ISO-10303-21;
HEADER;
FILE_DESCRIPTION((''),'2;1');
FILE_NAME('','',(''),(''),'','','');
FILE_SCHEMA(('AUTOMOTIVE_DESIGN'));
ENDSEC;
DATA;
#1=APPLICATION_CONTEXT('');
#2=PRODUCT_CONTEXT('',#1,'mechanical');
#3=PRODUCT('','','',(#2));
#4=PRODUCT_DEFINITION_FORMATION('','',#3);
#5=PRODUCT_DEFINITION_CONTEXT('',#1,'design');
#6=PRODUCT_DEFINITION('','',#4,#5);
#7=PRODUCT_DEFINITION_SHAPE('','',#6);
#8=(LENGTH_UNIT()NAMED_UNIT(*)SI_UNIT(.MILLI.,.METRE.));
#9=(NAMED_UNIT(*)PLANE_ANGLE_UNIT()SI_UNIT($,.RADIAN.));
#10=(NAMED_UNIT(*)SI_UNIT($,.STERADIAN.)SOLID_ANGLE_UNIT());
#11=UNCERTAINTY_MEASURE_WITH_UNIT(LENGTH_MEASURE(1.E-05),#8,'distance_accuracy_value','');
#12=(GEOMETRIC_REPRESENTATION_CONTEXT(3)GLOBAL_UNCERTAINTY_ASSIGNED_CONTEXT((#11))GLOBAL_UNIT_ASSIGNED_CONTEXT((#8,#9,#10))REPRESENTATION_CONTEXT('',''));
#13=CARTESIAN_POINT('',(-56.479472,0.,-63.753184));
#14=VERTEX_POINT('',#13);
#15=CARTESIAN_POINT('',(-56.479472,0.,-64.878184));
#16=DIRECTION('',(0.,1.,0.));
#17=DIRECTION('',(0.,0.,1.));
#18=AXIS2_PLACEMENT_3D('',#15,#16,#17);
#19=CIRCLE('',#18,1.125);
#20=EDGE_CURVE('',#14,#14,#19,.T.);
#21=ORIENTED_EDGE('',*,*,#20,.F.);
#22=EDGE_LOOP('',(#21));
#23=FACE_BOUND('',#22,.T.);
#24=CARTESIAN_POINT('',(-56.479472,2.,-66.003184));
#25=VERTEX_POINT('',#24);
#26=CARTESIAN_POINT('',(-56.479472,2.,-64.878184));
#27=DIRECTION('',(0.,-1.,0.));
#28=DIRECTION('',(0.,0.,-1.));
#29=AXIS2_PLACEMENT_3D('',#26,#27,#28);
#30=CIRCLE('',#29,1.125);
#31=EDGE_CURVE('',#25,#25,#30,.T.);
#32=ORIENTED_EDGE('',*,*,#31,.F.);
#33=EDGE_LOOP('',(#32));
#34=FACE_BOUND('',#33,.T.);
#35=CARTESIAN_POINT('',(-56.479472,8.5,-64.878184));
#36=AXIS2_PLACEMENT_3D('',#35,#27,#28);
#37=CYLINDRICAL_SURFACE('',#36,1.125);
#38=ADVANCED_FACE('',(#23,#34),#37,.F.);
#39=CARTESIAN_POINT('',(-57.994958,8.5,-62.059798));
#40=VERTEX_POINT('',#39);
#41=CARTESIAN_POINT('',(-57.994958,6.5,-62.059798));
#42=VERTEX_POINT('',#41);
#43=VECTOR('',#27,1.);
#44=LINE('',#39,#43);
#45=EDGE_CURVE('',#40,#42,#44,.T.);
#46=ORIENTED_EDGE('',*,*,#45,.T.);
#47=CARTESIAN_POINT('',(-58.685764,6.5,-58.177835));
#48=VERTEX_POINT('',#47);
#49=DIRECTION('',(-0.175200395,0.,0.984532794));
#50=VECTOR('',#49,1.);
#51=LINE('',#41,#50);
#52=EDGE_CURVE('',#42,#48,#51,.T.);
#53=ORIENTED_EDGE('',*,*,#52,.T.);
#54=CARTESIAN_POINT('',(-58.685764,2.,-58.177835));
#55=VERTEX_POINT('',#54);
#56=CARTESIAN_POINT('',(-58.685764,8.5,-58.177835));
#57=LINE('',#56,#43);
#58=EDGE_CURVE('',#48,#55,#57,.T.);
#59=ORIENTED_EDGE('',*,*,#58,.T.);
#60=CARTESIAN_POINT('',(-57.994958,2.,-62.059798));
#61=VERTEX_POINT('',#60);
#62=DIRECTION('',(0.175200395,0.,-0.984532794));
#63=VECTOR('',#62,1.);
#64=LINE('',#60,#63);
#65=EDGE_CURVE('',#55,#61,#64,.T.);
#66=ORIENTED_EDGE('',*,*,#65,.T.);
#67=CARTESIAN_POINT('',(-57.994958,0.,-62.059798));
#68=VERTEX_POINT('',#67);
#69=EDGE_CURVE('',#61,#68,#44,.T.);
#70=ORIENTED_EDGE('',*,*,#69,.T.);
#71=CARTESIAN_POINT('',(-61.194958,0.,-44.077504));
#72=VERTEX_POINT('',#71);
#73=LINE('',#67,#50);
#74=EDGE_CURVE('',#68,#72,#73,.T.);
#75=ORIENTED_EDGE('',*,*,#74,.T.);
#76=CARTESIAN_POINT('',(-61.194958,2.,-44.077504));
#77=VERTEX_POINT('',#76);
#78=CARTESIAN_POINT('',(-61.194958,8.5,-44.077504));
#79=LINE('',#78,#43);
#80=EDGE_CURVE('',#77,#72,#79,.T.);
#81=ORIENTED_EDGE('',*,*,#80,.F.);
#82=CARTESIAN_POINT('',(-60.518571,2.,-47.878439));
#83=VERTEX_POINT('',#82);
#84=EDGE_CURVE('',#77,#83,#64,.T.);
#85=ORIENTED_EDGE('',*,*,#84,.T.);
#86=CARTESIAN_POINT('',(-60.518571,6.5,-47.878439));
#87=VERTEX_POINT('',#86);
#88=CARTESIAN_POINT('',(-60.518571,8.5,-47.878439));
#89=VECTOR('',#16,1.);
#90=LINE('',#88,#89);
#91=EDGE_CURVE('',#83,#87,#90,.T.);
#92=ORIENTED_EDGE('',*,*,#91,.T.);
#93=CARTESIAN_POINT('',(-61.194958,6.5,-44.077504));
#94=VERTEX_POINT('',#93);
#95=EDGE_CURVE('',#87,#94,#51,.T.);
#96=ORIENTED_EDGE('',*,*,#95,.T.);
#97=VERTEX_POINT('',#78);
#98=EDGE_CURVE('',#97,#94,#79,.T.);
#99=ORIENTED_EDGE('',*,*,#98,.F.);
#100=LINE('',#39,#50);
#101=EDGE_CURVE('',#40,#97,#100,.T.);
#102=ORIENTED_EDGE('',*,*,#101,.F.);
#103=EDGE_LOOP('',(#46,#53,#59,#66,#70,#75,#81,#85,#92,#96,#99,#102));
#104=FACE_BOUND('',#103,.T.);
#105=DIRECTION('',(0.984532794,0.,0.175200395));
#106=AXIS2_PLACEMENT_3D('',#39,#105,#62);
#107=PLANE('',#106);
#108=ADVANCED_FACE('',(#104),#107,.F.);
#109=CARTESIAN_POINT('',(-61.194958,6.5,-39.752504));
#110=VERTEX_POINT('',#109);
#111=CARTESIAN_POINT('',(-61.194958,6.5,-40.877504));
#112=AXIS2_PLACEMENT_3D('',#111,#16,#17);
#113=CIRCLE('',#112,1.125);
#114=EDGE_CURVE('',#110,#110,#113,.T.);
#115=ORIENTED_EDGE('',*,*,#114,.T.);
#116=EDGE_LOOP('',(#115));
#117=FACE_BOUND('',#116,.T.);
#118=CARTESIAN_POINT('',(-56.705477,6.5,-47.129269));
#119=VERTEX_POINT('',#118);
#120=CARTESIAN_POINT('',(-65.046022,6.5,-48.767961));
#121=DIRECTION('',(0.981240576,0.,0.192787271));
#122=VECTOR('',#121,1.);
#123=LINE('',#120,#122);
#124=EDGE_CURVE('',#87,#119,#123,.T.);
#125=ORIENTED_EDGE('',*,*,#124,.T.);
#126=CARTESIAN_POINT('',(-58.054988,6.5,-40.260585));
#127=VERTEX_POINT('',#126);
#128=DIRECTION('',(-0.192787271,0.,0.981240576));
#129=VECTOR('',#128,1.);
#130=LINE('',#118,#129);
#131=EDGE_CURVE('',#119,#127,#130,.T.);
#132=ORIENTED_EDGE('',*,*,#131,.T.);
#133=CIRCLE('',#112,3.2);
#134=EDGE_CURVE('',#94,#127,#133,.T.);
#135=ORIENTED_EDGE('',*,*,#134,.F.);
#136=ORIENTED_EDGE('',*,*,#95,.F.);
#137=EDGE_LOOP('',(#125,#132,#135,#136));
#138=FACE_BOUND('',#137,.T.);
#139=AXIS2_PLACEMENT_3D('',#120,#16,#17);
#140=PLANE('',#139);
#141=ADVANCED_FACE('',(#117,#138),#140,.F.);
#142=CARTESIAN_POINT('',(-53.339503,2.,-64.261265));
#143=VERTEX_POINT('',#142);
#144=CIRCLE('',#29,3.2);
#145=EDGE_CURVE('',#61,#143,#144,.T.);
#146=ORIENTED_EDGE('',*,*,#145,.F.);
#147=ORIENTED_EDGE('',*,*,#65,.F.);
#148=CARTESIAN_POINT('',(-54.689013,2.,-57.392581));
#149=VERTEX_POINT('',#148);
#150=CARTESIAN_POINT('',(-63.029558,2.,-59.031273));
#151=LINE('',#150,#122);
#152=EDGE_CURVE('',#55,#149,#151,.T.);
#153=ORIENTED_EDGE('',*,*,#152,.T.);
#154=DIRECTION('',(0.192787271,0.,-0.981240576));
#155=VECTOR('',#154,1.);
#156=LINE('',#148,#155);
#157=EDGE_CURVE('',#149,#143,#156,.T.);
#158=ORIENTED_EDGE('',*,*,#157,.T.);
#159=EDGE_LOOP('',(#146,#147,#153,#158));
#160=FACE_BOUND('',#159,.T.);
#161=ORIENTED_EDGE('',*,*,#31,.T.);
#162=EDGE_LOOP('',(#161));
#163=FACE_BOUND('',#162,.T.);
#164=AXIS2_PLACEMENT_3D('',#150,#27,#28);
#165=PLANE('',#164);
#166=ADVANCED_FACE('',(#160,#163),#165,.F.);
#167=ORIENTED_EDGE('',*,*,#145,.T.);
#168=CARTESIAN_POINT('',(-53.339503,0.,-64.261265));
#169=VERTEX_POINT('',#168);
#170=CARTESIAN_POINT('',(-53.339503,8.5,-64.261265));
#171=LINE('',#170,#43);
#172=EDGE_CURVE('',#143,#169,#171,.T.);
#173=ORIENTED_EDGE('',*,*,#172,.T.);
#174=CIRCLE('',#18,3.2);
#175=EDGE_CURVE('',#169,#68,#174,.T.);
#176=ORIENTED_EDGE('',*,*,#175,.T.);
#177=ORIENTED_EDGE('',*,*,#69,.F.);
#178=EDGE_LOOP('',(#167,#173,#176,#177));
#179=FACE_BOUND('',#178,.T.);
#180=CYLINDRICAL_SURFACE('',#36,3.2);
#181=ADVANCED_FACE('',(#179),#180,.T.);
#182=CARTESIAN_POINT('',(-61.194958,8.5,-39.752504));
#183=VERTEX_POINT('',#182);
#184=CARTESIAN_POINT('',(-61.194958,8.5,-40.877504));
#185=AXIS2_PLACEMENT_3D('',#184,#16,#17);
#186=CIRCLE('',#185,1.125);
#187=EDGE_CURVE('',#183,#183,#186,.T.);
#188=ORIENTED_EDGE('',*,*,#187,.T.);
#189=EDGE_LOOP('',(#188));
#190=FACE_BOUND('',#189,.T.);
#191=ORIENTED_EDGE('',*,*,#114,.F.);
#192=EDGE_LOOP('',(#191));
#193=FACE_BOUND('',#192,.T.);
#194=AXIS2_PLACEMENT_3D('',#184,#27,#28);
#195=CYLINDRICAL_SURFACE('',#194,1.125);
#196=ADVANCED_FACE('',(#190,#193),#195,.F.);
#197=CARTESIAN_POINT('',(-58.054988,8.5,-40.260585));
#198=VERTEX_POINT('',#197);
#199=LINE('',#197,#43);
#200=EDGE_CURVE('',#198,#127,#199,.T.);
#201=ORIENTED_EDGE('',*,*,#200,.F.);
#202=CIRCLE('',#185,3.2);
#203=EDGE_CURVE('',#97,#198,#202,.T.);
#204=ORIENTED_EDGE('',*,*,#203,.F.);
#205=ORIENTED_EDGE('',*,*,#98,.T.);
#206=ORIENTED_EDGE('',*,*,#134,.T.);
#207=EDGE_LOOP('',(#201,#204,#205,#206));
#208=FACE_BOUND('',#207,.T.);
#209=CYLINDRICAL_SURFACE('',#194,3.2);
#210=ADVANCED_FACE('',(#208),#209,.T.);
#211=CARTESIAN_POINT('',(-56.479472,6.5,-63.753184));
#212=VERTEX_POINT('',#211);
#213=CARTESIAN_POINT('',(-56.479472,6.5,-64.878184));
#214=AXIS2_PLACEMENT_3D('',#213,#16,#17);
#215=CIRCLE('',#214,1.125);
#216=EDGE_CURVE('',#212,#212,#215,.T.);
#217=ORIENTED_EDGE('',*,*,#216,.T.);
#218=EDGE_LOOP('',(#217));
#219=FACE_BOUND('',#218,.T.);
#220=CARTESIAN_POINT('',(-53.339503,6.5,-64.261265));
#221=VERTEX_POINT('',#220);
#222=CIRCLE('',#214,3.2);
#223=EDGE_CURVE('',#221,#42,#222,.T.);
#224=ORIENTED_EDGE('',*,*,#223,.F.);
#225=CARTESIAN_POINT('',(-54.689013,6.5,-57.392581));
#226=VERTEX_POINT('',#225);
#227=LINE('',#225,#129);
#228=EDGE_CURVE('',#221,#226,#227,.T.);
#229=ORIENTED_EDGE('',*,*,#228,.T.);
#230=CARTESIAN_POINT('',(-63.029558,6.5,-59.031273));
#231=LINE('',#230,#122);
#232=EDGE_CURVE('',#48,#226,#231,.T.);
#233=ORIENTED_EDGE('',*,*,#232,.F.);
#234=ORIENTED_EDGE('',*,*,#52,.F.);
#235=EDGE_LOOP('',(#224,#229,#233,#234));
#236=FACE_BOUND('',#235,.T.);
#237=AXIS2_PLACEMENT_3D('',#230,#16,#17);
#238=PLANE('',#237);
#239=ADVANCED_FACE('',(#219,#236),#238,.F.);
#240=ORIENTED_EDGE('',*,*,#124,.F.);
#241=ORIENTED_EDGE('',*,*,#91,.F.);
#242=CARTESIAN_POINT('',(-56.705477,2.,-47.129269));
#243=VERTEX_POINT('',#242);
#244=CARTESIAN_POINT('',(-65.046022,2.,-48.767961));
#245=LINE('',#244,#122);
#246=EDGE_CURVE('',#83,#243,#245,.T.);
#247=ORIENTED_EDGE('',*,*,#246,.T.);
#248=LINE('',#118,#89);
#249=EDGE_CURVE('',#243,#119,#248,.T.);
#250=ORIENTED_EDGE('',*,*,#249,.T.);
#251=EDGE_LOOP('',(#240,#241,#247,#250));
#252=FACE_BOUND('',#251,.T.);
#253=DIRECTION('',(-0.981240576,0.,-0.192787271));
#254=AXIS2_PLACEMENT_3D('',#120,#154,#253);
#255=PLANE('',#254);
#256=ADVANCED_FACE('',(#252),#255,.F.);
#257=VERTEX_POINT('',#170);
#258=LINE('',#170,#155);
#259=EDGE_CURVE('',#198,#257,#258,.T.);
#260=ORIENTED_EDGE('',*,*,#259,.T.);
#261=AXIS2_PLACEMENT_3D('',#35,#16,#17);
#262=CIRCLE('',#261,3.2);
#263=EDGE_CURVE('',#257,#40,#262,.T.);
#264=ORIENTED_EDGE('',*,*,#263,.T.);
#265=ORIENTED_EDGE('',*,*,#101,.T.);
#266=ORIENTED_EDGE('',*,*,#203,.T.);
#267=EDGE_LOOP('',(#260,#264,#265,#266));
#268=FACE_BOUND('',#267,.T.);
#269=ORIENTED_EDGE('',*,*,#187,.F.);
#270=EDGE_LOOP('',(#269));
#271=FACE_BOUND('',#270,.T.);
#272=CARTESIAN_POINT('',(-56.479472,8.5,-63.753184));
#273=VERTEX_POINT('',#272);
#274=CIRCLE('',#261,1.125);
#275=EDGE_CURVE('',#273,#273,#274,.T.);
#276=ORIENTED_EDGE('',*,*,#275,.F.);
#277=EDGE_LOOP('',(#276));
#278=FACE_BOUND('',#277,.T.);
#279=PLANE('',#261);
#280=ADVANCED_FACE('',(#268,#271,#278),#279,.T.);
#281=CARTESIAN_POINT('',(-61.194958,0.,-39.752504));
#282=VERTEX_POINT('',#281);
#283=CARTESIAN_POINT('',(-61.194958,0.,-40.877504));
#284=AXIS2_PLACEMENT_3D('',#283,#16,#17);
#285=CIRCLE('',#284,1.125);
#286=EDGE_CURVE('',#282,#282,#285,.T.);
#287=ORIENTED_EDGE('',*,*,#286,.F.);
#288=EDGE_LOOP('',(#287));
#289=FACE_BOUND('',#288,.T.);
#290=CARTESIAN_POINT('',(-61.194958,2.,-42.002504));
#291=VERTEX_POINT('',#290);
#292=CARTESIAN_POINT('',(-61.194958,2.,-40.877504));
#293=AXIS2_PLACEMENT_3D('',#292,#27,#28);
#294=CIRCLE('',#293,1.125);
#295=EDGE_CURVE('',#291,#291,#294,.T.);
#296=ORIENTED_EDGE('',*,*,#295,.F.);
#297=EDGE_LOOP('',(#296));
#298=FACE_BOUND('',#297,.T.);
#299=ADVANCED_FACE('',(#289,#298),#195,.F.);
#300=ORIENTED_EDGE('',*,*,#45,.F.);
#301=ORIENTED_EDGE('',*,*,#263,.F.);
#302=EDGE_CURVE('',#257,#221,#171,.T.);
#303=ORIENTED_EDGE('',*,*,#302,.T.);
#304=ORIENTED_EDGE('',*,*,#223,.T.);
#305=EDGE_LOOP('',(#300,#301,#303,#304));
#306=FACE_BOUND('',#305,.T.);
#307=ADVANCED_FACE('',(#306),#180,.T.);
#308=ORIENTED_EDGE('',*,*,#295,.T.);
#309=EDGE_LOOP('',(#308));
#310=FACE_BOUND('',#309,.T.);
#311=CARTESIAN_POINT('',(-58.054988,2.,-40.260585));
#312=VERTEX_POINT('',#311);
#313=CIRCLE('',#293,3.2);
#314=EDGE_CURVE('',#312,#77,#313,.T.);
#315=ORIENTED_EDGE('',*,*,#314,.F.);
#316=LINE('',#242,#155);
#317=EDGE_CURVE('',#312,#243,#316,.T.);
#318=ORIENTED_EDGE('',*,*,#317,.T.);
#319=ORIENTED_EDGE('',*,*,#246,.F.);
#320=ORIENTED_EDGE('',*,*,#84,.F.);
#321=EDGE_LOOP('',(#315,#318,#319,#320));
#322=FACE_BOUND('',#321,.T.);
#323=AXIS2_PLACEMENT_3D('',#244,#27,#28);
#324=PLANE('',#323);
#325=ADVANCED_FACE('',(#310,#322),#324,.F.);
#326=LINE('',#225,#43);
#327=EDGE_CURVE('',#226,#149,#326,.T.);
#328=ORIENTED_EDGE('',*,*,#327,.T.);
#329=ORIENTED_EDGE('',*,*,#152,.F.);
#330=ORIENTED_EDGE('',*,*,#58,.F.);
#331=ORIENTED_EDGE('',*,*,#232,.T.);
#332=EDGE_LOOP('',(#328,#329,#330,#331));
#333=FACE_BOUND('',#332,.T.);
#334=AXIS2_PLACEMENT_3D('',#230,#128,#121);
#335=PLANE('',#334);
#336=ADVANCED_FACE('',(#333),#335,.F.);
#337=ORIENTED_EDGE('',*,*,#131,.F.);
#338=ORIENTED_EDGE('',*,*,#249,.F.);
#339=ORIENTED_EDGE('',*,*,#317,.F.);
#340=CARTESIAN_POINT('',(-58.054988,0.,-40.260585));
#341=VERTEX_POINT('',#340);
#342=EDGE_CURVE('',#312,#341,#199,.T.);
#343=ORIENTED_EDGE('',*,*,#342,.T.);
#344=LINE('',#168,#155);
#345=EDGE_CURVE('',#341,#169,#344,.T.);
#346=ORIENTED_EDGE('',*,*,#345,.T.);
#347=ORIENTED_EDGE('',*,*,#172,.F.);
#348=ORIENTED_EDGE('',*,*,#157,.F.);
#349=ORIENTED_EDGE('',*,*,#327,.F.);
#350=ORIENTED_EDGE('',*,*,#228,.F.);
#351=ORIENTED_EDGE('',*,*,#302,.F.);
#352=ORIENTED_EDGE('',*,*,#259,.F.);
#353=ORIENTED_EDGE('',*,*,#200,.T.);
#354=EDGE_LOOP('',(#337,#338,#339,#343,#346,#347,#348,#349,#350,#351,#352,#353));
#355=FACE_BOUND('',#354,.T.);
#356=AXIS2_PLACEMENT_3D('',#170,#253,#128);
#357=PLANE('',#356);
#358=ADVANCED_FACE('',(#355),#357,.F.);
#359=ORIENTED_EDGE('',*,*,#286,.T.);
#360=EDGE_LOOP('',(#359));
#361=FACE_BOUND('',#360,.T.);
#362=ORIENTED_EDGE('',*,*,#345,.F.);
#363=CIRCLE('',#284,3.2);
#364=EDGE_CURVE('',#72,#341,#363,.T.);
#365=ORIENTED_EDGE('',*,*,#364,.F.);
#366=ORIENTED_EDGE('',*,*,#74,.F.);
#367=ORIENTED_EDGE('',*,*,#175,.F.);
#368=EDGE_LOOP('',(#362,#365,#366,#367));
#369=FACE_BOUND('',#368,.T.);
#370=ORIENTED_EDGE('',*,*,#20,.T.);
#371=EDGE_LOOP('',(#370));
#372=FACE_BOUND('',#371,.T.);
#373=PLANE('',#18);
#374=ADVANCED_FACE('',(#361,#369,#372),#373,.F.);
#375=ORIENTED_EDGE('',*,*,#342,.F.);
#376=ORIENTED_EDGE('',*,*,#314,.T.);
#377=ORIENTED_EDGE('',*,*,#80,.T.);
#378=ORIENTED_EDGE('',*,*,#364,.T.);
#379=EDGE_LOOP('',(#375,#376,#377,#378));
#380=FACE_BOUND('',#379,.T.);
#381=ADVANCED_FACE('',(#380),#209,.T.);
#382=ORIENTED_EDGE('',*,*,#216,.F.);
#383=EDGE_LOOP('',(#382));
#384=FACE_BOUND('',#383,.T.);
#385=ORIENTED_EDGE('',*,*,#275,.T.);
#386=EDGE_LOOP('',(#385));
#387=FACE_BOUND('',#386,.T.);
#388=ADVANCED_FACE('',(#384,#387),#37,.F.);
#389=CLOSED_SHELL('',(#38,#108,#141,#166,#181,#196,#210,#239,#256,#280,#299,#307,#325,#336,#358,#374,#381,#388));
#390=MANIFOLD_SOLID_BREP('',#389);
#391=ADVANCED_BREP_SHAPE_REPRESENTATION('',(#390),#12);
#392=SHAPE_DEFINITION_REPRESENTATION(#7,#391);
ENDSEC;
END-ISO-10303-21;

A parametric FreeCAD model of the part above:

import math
import FreeCAD as App
import Part
import Sketcher


def add_polygon(sketch, points):
    """Adds a closed chain of lines whose ends are joined by coincident constraints."""
    first, n = sketch.GeometryCount, len(points)
    for a, b in zip(points, points[1:] + points[:1]):
        sketch.addGeometry(Part.LineSegment(App.Vector(*a, 0), App.Vector(*b, 0)), False)
    for i in range(n):
        sketch.addConstraint(Sketcher.Constraint("Coincident", first + i, 2, first + (i + 1) % n, 1))

doc = App.newDocument("Part")
params = doc.addObject("Spreadsheet::Sheet", "Params")
for row, (alias, value) in enumerate([
    ("sketch1_radius", "3.2 mm"),
    ("sketch1_diameter", "2.25 mm"),
    ("pad1_length", "8.5 mm"),
    ("sketch2_height", "4.5 mm"),
    ("pocket1_length", "8.5 mm"),
], start=1):
    params.set(f"A{row}", alias)
    params.set(f"B{row}", "=" + value)
    params.setAlias(f"B{row}", alias)

body = doc.addObject("PartDesign::Body", "Body")

sketch1 = doc.addObject("Sketcher::SketchObject", "Sketch")
body.addObject(sketch1)
sketch1.AttachmentSupport = (doc.XZ_Plane, [""])
sketch1.MapMode = "FlatFace"
sketch1.addGeometry([
    Part.LineSegment(App.Vector(-58.1, -40.3, 0), App.Vector(-53.3, -64.3, 0)),
    Part.ArcOfCircle(Part.Circle(App.Vector(-56.5, -64.9, 0), App.Vector(0, 0, 1), 3.2), math.radians(118), math.radians(371)),
    Part.LineSegment(App.Vector(-58, -62.1, 0), App.Vector(-61.2, -44.1, 0)),
    Part.ArcOfCircle(Part.Circle(App.Vector(-61.2, -40.9, 0), App.Vector(0, 0, 1), 3.2), math.radians(11), math.radians(270)),
    Part.Circle(App.Vector(-61.2, -40.9, 0), App.Vector(0, 0, 1), 1.1),
    Part.Circle(App.Vector(-56.5, -64.9, 0), App.Vector(0, 0, 1), 1.1),
], False)
sketch1.addConstraint([
    Sketcher.Constraint("Tangent", 0, 2, 1, 2),
    Sketcher.Constraint("Coincident", 1, 1, 2, 1),
    Sketcher.Constraint("Coincident", 2, 2, 3, 2),
    Sketcher.Constraint("Tangent", 3, 1, 0, 1),
    Sketcher.Constraint("Coincident", 4, 3, 3, 3),
    Sketcher.Constraint("Coincident", 5, 3, 1, 3),
    Sketcher.Constraint("Equal", 1, 3),
    Sketcher.Constraint("Equal", 4, 5),
    Sketcher.Constraint("Vertical", 4, 3, 2, 2),
    Sketcher.Constraint("Radius", 1, 3.2),
    Sketcher.Constraint("Diameter", 4, 2.25),
    Sketcher.Constraint("DistanceX", 3, 3, 1, 1, 3.2),
    Sketcher.Constraint("Distance", 2, 18.264799),
    Sketcher.Constraint("DistanceX", 3, 1, -1, 1, 58.054988),
    Sketcher.Constraint("DistanceY", 1, 3, 3, 3, 24.00068),
    Sketcher.Constraint("DistanceY", 1, 3, -1, 1, 64.878184),
])
sketch1.setExpression("Constraints[9]", "Params.sketch1_radius")
sketch1.setExpression("Constraints[10]", "Params.sketch1_diameter")
pad1 = doc.addObject("PartDesign::Pad", "Pad")
body.addObject(pad1)
pad1.Profile = sketch1
pad1.setExpression("Length", "Params.pad1_length")
pad1.Reversed = True

sketch2 = doc.addObject("Sketcher::SketchObject", "Sketch001")
body.addObject(sketch2)
sketch2.Placement = App.Placement(App.Vector(-63.513385, 0, -12.478665), App.Rotation(App.Vector(0.192787271, 0, -0.981240576), App.Vector(0, 1, 0), App.Vector(0.981240576, 0, 0.192787271), "ZXY"))
add_polygon(sketch2, [(45.8, 6.5), (45.8, 2), (63.3, 2), (63.3, 6.5)])
add_polygon(sketch2, [(18.6, 6.5), (18.6, 2), (35.3, 2), (35.3, 6.5)])
sketch2.addConstraint([
    Sketcher.Constraint("Vertical", 0),
    Sketcher.Constraint("Horizontal", 1),
    Sketcher.Constraint("Vertical", 2),
    Sketcher.Constraint("Horizontal", 3),
    Sketcher.Constraint("Vertical", 4),
    Sketcher.Constraint("Horizontal", 5),
    Sketcher.Constraint("Vertical", 6),
    Sketcher.Constraint("Horizontal", 7),
    Sketcher.Constraint("Horizontal", 1, 2, 4, 2),
    Sketcher.Constraint("Horizontal", 3, 2, 6, 2),
    Sketcher.Constraint("DistanceY", 0, 2, 0, 1, 4.5),
    Sketcher.Constraint("DistanceY", -1, 1, 0, 2, 2.0),
    Sketcher.Constraint("DistanceX", 5, 1, 5, 2, 16.73944),
    Sketcher.Constraint("DistanceX", 1, 1, 1, 2, 17.570802),
    Sketcher.Constraint("DistanceX", 4, 2, 1, 2, 44.769769),
    Sketcher.Constraint("DistanceX", -1, 1, 0, 2, 45.772584),
])
sketch2.setExpression("Constraints[18]", "Params.sketch2_height")
pocket1 = doc.addObject("PartDesign::Pocket", "Pocket")
body.addObject(pocket1)
pocket1.Profile = sketch2
pocket1.setExpression("Length", "Params.pocket1_length")

doc.recompute()
